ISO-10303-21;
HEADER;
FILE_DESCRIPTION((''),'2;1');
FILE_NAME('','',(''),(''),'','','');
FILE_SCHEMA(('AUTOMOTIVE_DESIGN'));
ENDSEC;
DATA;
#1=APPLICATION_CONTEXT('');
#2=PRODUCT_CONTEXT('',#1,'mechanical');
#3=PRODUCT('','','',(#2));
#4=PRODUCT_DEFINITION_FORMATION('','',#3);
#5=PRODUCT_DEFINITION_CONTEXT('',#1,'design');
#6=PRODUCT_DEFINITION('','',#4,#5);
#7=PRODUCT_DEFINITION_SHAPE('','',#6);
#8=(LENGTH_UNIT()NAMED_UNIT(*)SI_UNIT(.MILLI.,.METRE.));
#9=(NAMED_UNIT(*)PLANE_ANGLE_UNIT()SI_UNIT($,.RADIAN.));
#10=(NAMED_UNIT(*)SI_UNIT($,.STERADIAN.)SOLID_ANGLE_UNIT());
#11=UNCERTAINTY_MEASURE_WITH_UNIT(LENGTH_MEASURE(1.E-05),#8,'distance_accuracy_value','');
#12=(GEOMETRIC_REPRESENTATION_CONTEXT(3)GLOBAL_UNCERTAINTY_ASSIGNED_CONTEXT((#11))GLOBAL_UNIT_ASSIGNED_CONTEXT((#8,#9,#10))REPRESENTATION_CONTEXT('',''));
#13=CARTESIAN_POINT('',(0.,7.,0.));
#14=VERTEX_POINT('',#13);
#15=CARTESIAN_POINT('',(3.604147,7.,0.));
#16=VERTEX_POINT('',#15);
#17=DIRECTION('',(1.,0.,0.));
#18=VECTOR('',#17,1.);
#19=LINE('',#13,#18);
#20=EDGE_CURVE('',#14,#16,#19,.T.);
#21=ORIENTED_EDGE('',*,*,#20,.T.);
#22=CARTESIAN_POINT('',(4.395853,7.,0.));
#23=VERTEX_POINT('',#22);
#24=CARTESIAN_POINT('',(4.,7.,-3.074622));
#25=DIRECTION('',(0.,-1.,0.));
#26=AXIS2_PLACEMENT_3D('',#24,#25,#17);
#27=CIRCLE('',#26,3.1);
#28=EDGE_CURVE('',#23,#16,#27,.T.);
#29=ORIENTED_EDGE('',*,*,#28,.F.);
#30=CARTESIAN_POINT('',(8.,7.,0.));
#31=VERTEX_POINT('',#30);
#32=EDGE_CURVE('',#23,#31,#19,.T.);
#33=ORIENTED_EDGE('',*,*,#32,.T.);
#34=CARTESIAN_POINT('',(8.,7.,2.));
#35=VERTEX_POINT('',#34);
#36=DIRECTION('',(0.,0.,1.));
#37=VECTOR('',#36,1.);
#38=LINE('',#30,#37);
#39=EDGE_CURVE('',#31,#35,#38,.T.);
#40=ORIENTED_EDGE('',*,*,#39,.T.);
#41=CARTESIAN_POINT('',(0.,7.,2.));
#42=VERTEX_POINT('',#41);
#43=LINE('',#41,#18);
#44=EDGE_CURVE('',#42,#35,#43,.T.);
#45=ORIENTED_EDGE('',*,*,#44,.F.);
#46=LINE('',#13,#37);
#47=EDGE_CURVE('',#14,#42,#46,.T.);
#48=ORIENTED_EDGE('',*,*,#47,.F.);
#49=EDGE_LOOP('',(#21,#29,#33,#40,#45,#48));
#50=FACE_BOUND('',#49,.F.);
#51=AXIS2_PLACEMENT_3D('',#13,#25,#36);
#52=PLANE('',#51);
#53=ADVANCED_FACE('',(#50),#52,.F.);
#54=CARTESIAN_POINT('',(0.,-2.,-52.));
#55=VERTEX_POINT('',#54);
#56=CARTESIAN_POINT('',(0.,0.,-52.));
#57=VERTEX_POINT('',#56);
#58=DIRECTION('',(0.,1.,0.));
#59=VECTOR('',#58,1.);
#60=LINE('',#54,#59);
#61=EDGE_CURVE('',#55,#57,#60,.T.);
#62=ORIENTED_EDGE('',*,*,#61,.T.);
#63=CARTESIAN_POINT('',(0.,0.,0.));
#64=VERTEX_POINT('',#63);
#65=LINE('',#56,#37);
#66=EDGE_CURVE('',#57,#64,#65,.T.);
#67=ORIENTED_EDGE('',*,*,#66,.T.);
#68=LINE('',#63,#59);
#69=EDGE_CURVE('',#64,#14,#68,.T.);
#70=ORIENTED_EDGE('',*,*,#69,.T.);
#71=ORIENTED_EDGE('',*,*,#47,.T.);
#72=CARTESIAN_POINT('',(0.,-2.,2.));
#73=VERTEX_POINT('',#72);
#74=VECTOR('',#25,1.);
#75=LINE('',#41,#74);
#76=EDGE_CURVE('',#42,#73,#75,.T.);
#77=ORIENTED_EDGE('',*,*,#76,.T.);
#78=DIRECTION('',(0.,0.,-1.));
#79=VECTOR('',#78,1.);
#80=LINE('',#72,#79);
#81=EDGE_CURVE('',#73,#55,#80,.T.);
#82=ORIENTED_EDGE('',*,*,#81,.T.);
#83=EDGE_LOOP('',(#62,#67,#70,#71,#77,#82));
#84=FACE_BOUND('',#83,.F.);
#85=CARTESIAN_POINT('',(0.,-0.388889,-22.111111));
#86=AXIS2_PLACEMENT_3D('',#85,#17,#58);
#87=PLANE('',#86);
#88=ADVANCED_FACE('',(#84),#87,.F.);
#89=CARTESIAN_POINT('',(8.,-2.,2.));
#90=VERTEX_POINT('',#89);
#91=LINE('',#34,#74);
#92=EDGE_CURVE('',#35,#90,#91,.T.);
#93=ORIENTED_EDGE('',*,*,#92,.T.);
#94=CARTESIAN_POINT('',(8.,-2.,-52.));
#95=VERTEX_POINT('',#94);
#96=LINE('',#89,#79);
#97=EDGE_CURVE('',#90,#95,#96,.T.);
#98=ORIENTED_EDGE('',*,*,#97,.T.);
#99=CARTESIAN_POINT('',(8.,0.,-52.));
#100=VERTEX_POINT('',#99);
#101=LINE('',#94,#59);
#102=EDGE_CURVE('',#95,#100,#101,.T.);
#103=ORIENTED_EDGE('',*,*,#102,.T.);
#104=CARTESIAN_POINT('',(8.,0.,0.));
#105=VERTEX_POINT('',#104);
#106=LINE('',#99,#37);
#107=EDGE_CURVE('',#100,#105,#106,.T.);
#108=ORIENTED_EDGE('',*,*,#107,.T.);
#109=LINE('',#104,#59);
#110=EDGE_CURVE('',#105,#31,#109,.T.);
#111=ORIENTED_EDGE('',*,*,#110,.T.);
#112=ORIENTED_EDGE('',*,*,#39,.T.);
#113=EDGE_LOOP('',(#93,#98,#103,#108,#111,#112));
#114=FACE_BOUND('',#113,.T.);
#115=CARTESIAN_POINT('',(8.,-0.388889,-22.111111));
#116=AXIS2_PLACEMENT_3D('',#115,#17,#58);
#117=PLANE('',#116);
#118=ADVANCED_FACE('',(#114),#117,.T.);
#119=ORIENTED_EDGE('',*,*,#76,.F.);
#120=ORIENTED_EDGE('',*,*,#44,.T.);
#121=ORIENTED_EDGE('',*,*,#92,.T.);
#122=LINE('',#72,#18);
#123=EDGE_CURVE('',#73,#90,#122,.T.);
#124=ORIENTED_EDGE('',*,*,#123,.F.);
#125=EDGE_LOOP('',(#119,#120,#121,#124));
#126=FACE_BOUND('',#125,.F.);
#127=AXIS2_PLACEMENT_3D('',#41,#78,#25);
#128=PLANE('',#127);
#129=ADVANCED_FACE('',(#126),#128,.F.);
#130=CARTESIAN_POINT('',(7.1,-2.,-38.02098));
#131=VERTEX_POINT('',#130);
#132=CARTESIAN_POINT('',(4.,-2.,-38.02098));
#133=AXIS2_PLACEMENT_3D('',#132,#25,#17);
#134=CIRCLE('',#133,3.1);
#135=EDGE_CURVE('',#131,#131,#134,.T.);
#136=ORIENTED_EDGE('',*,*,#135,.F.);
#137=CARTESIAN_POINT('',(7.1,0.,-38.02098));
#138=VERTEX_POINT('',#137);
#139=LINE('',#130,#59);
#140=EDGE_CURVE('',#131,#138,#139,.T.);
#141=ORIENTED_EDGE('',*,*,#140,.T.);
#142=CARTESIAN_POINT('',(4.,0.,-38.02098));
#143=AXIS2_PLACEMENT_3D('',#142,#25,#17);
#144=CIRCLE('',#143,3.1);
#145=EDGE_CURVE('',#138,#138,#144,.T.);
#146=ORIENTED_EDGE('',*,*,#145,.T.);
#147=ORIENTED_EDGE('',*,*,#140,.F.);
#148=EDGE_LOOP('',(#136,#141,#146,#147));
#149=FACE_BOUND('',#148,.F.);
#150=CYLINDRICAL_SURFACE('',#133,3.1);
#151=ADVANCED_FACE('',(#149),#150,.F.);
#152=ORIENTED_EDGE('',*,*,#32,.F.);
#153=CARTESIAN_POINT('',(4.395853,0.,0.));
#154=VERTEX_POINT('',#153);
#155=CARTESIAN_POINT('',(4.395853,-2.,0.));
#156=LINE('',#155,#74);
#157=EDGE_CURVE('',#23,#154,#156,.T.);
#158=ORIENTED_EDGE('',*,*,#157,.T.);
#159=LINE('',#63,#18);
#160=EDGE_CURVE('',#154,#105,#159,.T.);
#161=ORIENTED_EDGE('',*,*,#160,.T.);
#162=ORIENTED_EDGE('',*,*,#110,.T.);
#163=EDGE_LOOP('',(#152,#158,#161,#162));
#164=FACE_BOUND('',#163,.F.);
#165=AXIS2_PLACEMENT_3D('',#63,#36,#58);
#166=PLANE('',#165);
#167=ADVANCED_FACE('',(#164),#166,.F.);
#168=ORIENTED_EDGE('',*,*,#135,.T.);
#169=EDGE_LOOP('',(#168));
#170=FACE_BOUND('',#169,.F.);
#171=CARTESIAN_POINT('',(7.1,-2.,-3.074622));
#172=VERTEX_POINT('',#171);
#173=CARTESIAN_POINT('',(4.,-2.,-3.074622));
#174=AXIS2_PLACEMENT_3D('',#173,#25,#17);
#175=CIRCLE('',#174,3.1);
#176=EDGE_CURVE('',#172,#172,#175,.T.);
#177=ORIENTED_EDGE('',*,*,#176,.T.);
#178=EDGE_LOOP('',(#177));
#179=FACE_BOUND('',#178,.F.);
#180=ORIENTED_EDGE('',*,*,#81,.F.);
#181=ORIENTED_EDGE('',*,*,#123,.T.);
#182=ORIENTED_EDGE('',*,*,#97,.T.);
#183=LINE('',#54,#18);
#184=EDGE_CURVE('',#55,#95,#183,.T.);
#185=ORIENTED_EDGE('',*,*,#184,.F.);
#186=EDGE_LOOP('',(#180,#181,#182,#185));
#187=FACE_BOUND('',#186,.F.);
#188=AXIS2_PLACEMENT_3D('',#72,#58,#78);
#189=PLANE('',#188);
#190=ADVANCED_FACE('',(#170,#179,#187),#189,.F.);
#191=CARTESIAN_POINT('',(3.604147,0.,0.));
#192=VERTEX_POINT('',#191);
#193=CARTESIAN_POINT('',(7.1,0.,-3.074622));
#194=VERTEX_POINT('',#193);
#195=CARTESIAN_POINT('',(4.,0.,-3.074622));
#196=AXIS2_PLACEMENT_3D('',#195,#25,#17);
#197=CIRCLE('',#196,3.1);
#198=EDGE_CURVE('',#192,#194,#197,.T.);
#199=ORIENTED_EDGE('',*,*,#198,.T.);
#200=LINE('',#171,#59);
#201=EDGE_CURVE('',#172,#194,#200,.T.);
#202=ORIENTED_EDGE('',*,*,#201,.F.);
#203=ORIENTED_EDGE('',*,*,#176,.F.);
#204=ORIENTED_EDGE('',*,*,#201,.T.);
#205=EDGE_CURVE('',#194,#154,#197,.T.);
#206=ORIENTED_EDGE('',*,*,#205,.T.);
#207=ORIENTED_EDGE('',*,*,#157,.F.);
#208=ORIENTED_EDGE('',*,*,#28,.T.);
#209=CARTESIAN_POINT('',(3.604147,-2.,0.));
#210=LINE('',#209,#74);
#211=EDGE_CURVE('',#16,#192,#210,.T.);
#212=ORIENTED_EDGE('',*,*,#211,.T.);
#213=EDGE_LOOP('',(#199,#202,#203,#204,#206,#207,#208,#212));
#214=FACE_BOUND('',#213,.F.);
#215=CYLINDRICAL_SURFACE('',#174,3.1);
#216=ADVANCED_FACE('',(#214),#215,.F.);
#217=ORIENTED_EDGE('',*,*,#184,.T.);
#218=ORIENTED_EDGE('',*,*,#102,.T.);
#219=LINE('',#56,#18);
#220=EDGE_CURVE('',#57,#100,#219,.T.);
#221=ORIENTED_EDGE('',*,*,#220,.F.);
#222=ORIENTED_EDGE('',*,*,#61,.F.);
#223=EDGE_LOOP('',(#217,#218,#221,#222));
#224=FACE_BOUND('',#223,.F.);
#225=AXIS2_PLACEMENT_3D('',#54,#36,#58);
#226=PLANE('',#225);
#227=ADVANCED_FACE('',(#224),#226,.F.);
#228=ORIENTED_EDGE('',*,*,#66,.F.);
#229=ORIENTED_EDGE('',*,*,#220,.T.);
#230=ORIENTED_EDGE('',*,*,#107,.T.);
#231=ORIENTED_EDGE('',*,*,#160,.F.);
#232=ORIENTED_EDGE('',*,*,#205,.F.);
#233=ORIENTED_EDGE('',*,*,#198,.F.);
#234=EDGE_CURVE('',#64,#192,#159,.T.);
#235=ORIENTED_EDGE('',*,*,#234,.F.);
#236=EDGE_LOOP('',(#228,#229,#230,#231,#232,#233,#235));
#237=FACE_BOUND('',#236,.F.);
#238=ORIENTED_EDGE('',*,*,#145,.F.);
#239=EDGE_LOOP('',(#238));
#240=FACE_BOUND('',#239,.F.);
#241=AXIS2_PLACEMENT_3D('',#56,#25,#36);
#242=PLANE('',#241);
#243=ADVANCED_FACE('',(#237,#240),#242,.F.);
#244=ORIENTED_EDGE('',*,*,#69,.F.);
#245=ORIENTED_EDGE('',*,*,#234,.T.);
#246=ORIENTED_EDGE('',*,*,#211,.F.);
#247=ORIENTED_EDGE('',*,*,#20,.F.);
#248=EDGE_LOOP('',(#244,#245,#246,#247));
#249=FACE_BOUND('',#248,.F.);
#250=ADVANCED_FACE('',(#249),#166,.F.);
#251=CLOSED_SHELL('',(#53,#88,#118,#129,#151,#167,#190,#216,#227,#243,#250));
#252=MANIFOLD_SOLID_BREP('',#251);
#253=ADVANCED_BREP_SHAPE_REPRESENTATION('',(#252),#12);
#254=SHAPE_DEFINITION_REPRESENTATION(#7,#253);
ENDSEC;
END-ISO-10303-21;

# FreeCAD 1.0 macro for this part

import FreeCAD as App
import Part
import Sketcher
Q = App.Units.Quantity

doc = App.newDocument("Part")
params = doc.addObject("Spreadsheet::Sheet", "Params")
for row, (alias, value) in enumerate([
    ("sketch1_width", "7 mm"),
    ("sketch1_width2", "9 mm"),
    ("sketch1_height", "52 mm"),
    ("pad1_length", "8 mm"),
    ("sketch2_diameter", "6.2 mm"),
    ("pocket1_length", "25 mm"),
], start=1):
    params.set(f"A{row}", alias)
    params.set(f"B{row}", "=" + value)
    params.setAlias(f"B{row}", alias)

body = doc.addObject("PartDesign::Body", "Body")

sketch1 = body.newObject("Sketcher::SketchObject", "Sketch")
sketch1.AttachmentSupport = (doc.getObject("YZ_Plane"), [""])
sketch1.MapMode = "FlatFace"
sketch1.addGeometry(Part.LineSegment(App.Vector(0, -52, 0), App.Vector(0, 0, 0)), False)
sketch1.addGeometry(Part.LineSegment(App.Vector(0, 0, 0), App.Vector(7, 0, 0)), False)
sketch1.addGeometry(Part.LineSegment(App.Vector(7, 0, 0), App.Vector(7, 2, 0)), False)
sketch1.addGeometry(Part.LineSegment(App.Vector(7, 2, 0), App.Vector(-2, 2, 0)), False)
sketch1.addGeometry(Part.LineSegment(App.Vector(-2, 2, 0), App.Vector(-2, -52, 0)), False)
sketch1.addGeometry(Part.LineSegment(App.Vector(-2, -52, 0), App.Vector(0, -52, 0)), False)
sketch1.addConstraint(Sketcher.Constraint("Coincident", 0, 2, 1, 1))
sketch1.addConstraint(Sketcher.Constraint("Coincident", 1, 2, 2, 1))
sketch1.addConstraint(Sketcher.Constraint("Coincident", 2, 2, 3, 1))
sketch1.addConstraint(Sketcher.Constraint("Coincident", 3, 2, 4, 1))
sketch1.addConstraint(Sketcher.Constraint("Coincident", 4, 2, 5, 1))
sketch1.addConstraint(Sketcher.Constraint("Coincident", 5, 2, 0, 1))
sketch1.addConstraint(Sketcher.Constraint("Vertical", 0))
sketch1.addConstraint(Sketcher.Constraint("Horizontal", 1))
sketch1.addConstraint(Sketcher.Constraint("Vertical", 2))
sketch1.addConstraint(Sketcher.Constraint("Horizontal", 3))
sketch1.addConstraint(Sketcher.Constraint("Vertical", 4))
sketch1.addConstraint(Sketcher.Constraint("Horizontal", 5))
sketch1.addConstraint(Sketcher.Constraint("Coincident", 0, 2, -1, 1))
sketch1.addConstraint(Sketcher.Constraint("Equal", 5, 2))
sketch1.addConstraint(Sketcher.Constraint("DistanceX", 1, 1, 1, 2, Q("7 mm")))
sketch1.addConstraint(Sketcher.Constraint("DistanceX", 3, 2, 3, 1, Q("9 mm")))
sketch1.addConstraint(Sketcher.Constraint("DistanceY", 0, 1, 0, 2, Q("52 mm")))
sketch1.setExpression("Constraints[14]", "Params.sketch1_width")
sketch1.setExpression("Constraints[15]", "Params.sketch1_width2")
sketch1.setExpression("Constraints[16]", "Params.sketch1_height")
pad1 = body.newObject("PartDesign::Pad", "Pad")
pad1.Profile = sketch1
pad1.setExpression("Length", "Params.pad1_length")

sketch2 = body.newObject("Sketcher::SketchObject", "Sketch001")
sketch2.AttachmentSupport = (doc.getObject("XZ_Plane"), [""])
sketch2.MapMode = "FlatFace"
sketch2.AttachmentOffset = App.Placement(App.Vector(0, 0, 2), App.Rotation())
sketch2.addGeometry(Part.Circle(App.Vector(4, -3.074622, 0), App.Vector(0, 0, 1), 3.1), False)
sketch2.addGeometry(Part.Circle(App.Vector(4, -38.02098, 0), App.Vector(0, 0, 1), 3.1), False)
sketch2.addConstraint(Sketcher.Constraint("Equal", 0, 1))
sketch2.addConstraint(Sketcher.Constraint("Vertical", 0, 3, 1, 3))
sketch2.addConstraint(Sketcher.Constraint("Diameter", 0, Q("6.2 mm")))
sketch2.addConstraint(Sketcher.Constraint("DistanceX", -1, 1, 0, 3, Q("4 mm")))
sketch2.addConstraint(Sketcher.Constraint("DistanceY", 1, 3, -1, 1, Q("38.02098 mm")))
sketch2.addConstraint(Sketcher.Constraint("DistanceY", 1, 3, 0, 3, Q("34.946358 mm")))
sketch2.setExpression("Constraints[2]", "Params.sketch2_diameter")
pocket1 = body.newObject("PartDesign::Pocket", "Pocket")
pocket1.Profile = sketch2
pocket1.setExpression("Length", "Params.pocket1_length")

doc.recompute()
